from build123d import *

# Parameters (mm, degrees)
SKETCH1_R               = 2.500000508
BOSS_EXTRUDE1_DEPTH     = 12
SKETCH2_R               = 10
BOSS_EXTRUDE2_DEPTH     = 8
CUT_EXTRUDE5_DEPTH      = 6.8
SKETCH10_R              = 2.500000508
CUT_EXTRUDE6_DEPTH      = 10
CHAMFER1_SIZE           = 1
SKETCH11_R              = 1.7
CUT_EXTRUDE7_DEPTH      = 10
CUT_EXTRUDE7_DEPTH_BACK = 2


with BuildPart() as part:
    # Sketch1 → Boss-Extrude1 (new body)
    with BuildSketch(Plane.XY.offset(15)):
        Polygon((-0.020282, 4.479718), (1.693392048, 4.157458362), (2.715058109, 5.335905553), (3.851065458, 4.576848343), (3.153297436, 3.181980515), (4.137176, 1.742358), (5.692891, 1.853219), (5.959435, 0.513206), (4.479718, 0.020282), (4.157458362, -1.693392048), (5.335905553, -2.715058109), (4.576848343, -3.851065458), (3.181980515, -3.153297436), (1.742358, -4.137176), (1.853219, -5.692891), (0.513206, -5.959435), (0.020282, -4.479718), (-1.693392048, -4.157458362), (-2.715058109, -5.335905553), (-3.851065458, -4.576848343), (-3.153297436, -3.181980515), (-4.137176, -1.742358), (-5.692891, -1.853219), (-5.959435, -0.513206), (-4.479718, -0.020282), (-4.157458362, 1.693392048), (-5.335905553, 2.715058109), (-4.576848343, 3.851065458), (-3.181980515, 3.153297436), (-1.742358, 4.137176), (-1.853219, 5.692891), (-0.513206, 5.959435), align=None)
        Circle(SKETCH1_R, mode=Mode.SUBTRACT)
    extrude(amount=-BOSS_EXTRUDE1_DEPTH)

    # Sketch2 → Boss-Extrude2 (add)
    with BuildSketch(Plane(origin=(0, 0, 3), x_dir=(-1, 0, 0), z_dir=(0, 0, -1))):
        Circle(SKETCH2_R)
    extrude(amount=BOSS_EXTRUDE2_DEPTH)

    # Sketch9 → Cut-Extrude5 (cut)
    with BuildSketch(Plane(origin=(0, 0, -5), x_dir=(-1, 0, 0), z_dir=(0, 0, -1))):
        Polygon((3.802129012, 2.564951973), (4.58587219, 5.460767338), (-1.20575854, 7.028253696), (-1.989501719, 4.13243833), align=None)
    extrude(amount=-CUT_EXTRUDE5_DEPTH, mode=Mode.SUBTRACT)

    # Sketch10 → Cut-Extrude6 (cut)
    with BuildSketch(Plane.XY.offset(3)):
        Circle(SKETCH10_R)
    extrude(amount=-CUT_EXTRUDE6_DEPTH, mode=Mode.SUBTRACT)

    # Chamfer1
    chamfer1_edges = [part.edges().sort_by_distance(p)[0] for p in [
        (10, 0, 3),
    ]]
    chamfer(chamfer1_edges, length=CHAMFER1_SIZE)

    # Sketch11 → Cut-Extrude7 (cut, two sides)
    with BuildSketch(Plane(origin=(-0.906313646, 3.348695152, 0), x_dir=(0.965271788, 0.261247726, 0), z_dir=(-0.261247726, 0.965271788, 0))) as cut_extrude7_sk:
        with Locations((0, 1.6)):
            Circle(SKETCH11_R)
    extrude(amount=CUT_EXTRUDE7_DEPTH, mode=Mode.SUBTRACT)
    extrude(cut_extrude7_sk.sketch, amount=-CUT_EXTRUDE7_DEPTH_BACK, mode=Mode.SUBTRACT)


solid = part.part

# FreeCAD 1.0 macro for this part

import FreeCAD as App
import Part
import Sketcher
from FreeCAD import Vector


def edges_at(feature, points):
    """Names of the edges that pass closest to the given points."""
    edges = feature.Shape.Edges
    near = lambda p: min(range(len(edges)), key=lambda i: edges[i].distToShape(Part.Vertex(*p))[0])
    return sorted({f"Edge{near(p) + 1}" for p in points})

doc = App.newDocument("Part")
body = doc.addObject("PartDesign::Body", "Body")

# Sketch on XY plane
sketch1 = body.newObject("Sketcher::SketchObject", "Sketch")
sketch1.AttachmentSupport = (doc.getObject("XY_Plane"), [""])
sketch1.MapMode = "FlatFace"
sketch1.AttachmentOffset = App.Placement(Vector(0, 0, 15), App.Rotation())
sketch1.addGeometry([
    Part.LineSegment(Vector(1.693392, 4.157458, 0), Vector(-0.020282, 4.479718, 0)),  # 0
    Part.LineSegment(Vector(-0.020282, 4.479718, 0), Vector(-0.513206, 5.959435, 0)),  # 1
    Part.LineSegment(Vector(-0.513206, 5.959435, 0), Vector(-1.853219, 5.692891, 0)),  # 2
    Part.LineSegment(Vector(-1.853219, 5.692891, 0), Vector(-1.742358, 4.137176, 0)),  # 3
    Part.LineSegment(Vector(-1.742358, 4.137176, 0), Vector(-3.181981, 3.153297, 0)),  # 4
    Part.LineSegment(Vector(-3.181981, 3.153297, 0), Vector(-4.576848, 3.851065, 0)),  # 5
    Part.LineSegment(Vector(-4.576848, 3.851065, 0), Vector(-5.335906, 2.715058, 0)),  # 6
    Part.LineSegment(Vector(-5.335906, 2.715058, 0), Vector(-4.157458, 1.693392, 0)),  # 7
    Part.LineSegment(Vector(-4.157458, 1.693392, 0), Vector(-4.479718, -0.020282, 0)),  # 8
    Part.LineSegment(Vector(-4.479718, -0.020282, 0), Vector(-5.959435, -0.513206, 0)),  # 9
    Part.LineSegment(Vector(-5.959435, -0.513206, 0), Vector(-5.692891, -1.853219, 0)),  # 10
    Part.LineSegment(Vector(-5.692891, -1.853219, 0), Vector(-4.137176, -1.742358, 0)),  # 11
    Part.LineSegment(Vector(-4.137176, -1.742358, 0), Vector(-3.153297, -3.181981, 0)),  # 12
    Part.LineSegment(Vector(-3.153297, -3.181981, 0), Vector(-3.851065, -4.576848, 0)),  # 13
    Part.LineSegment(Vector(-3.851065, -4.576848, 0), Vector(-2.715058, -5.335906, 0)),  # 14
    Part.LineSegment(Vector(-2.715058, -5.335906, 0), Vector(-1.693392, -4.157458, 0)),  # 15
    Part.LineSegment(Vector(-1.693392, -4.157458, 0), Vector(0.020282, -4.479718, 0)),  # 16
    Part.LineSegment(Vector(0.020282, -4.479718, 0), Vector(0.513206, -5.959435, 0)),  # 17
    Part.LineSegment(Vector(0.513206, -5.959435, 0), Vector(1.853219, -5.692891, 0)),  # 18
    Part.LineSegment(Vector(1.853219, -5.692891, 0), Vector(1.742358, -4.137176, 0)),  # 19
    Part.LineSegment(Vector(1.742358, -4.137176, 0), Vector(3.181981, -3.153297, 0)),  # 20
    Part.LineSegment(Vector(3.181981, -3.153297, 0), Vector(4.576848, -3.851065, 0)),  # 21
    Part.LineSegment(Vector(4.576848, -3.851065, 0), Vector(5.335906, -2.715058, 0)),  # 22
    Part.LineSegment(Vector(5.335906, -2.715058, 0), Vector(4.157458, -1.693392, 0)),  # 23
    Part.LineSegment(Vector(4.157458, -1.693392, 0), Vector(4.479718, 0.020282, 0)),  # 24
    Part.LineSegment(Vector(4.479718, 0.020282, 0), Vector(5.959435, 0.513206, 0)),  # 25
    Part.LineSegment(Vector(5.959435, 0.513206, 0), Vector(5.692891, 1.853219, 0)),  # 26
    Part.LineSegment(Vector(5.692891, 1.853219, 0), Vector(4.137176, 1.742358, 0)),  # 27
    Part.LineSegment(Vector(4.137176, 1.742358, 0), Vector(3.153297, 3.181981, 0)),  # 28
    Part.LineSegment(Vector(3.153297, 3.181981, 0), Vector(3.851065, 4.576848, 0)),  # 29
    Part.LineSegment(Vector(3.851065, 4.576848, 0), Vector(2.715058, 5.335906, 0)),  # 30
    Part.LineSegment(Vector(2.715058, 5.335906, 0), Vector(1.693392, 4.157458, 0)),  # 31
    Part.Circle(Vector(0, 0, 0), Vector(0, 0, 1), 2.500001),  # 32
], False)
sketch1.addConstraint([
    Sketcher.Constraint("Coincident", 0, 2, 1, 1),
    Sketcher.Constraint("Coincident", 1, 2, 2, 1),
    Sketcher.Constraint("Coincident", 2, 2, 3, 1),
    Sketcher.Constraint("Coincident", 3, 2, 4, 1),
    Sketcher.Constraint("Coincident", 4, 2, 5, 1),
    Sketcher.Constraint("Coincident", 5, 2, 6, 1),
    Sketcher.Constraint("Coincident", 6, 2, 7, 1),
    Sketcher.Constraint("Coincident", 7, 2, 8, 1),
    Sketcher.Constraint("Coincident", 8, 2, 9, 1),
    Sketcher.Constraint("Coincident", 9, 2, 10, 1),
    Sketcher.Constraint("Coincident", 10, 2, 11, 1),
    Sketcher.Constraint("Coincident", 11, 2, 12, 1),
    Sketcher.Constraint("Coincident", 12, 2, 13, 1),
    Sketcher.Constraint("Coincident", 13, 2, 14, 1),
    Sketcher.Constraint("Coincident", 14, 2, 15, 1),
    Sketcher.Constraint("Coincident", 15, 2, 16, 1),
    Sketcher.Constraint("Coincident", 16, 2, 17, 1),
    Sketcher.Constraint("Coincident", 17, 2, 18, 1),
    Sketcher.Constraint("Coincident", 18, 2, 19, 1),
    Sketcher.Constraint("Coincident", 19, 2, 20, 1),
    Sketcher.Constraint("Coincident", 20, 2, 21, 1),
    Sketcher.Constraint("Coincident", 21, 2, 22, 1),
    Sketcher.Constraint("Coincident", 22, 2, 23, 1),
    Sketcher.Constraint("Coincident", 23, 2, 24, 1),
    Sketcher.Constraint("Coincident", 24, 2, 25, 1),
    Sketcher.Constraint("Coincident", 25, 2, 26, 1),
    Sketcher.Constraint("Coincident", 26, 2, 27, 1),
    Sketcher.Constraint("Coincident", 27, 2, 28, 1),
    Sketcher.Constraint("Coincident", 28, 2, 29, 1),
    Sketcher.Constraint("Coincident", 29, 2, 30, 1),
    Sketcher.Constraint("Coincident", 30, 2, 31, 1),
    Sketcher.Constraint("Coincident", 31, 2, 0, 1),
    Sketcher.Constraint("Coincident", 32, 3, -1, 1),
    Sketcher.Constraint("Symmetric", 0, 2, 16, 2, -1, 1),
    Sketcher.Constraint("Symmetric", 1, 2, 17, 2, -1, 1),
    Sketcher.Constraint("Symmetric", 2, 2, 18, 2, -1, 1),
    Sketcher.Constraint("Symmetric", 3, 2, 19, 2, -1, 1),
    Sketcher.Constraint("Symmetric", 4, 2, 20, 2, -1, 1),
    Sketcher.Constraint("Symmetric", 5, 2, 21, 2, -1, 1),
    Sketcher.Constraint("Symmetric", 6, 2, 22, 2, -1, 1),
    Sketcher.Constraint("Symmetric", 7, 2, 23, 2, -1, 1),
    Sketcher.Constraint("Symmetric", 8, 2, 24, 2, -1, 1),
    Sketcher.Constraint("Symmetric", 9, 2, 25, 2, -1, 1),
    Sketcher.Constraint("Symmetric", 10, 2, 26, 2, -1, 1),
    Sketcher.Constraint("Symmetric", 11, 2, 27, 2, -1, 1),
    Sketcher.Constraint("Symmetric", 12, 2, 28, 2, -1, 1),
    Sketcher.Constraint("Symmetric", 13, 2, 29, 2, -1, 1),
    Sketcher.Constraint("Symmetric", 14, 2, 30, 2, -1, 1),
    Sketcher.Constraint("Symmetric", 15, 2, 31, 2, -1, 1),
    Sketcher.Constraint("Perpendicular", 0, 8),
    Sketcher.Constraint("Perpendicular", 1, 9),
    Sketcher.Constraint("Perpendicular", 2, 10),
    Sketcher.Constraint("Perpendicular", 3, 11),
    Sketcher.Constraint("Perpendicular", 4, 12),
    Sketcher.Constraint("Perpendicular", 5, 13),
    Sketcher.Constraint("Perpendicular", 6, 14),
    Sketcher.Constraint("Perpendicular", 7, 15),
    Sketcher.Constraint("Equal", 1, 3),
    Sketcher.Constraint("Equal", 0, 4),
    Sketcher.Constraint("Equal", 3, 5),
    Sketcher.Constraint("Equal", 2, 6),
    Sketcher.Constraint("Equal", 5, 7),
    Sketcher.Constraint("Equal", 4, 8),
    Sketcher.Constraint("Equal", 7, 9),
    Sketcher.Constraint("Equal", 6, 10),
    Sketcher.Constraint("Equal", 9, 11),
    Sketcher.Constraint("Equal", 8, 12),
    Sketcher.Constraint("Equal", 11, 13),
    Sketcher.Constraint("Equal", 10, 14),
    Sketcher.Constraint("Equal", 13, 15),
    Sketcher.Constraint("Diameter", 32, 5.000001),
    Sketcher.Constraint("DistanceX", 4, 2, 0, 2, 3.161699),
    Sketcher.Constraint("DistanceX", 7, 2, 3, 2, 2.4151),
    Sketcher.Constraint("DistanceY", 9, 2, 7, 2, 2.206598),
    Sketcher.Constraint("Distance", 0, 1.743712),
    Sketcher.Constraint("Distance", 1, 1.559659),
    Sketcher.Constraint("DistanceX", 2, 2, -1, 1, 1.853219),
    Sketcher.Constraint("DistanceY", -1, 1, 2, 2, 5.692891),
    Sketcher.Constraint("DistanceX", 3, 2, -1, 1, 1.742358),
    Sketcher.Constraint("DistanceX", 4, 2, -1, 1, 3.181981),
    Sketcher.Constraint("DistanceX", 5, 2, -1, 1, 4.576848),
    Sketcher.Constraint("DistanceY", -1, 1, 6, 2, 2.715058),
])
pad1 = body.newObject("PartDesign::Pad", "Pad")
pad1.Profile = sketch1
pad1.Length = 12
pad1.Reversed = True

# Sketch on XY plane
sketch2 = body.newObject("Sketcher::SketchObject", "Sketch001")
sketch2.AttachmentSupport = (doc.getObject("XY_Plane"), [""])
sketch2.MapMode = "FlatFace"
sketch2.AttachmentOffset = App.Placement(Vector(0, 0, 3), App.Rotation())
sketch2.addGeometry(Part.Circle(Vector(0, 0, 0), Vector(0, 0, 1), 10), False)
sketch2.addConstraint([
    Sketcher.Constraint("Coincident", 0, 3, -1, 1),
    Sketcher.Constraint("Diameter", 0, 20.0),
])
pad2 = body.newObject("PartDesign::Pad", "Pad001")
pad2.Profile = sketch2
pad2.Length = 8
pad2.Reversed = True

# Sketch on XY plane
sketch3 = body.newObject("Sketcher::SketchObject", "Sketch002")
sketch3.AttachmentSupport = (doc.getObject("XY_Plane"), [""])
sketch3.MapMode = "FlatFace"
sketch3.AttachmentOffset = App.Placement(Vector(0, 0, -5), App.Rotation())
sketch3.addGeometry([
    Part.LineSegment(Vector(-3.802129, 2.564952, 0), Vector(-4.585872, 5.460767, 0)),
    Part.LineSegment(Vector(-4.585872, 5.460767, 0), Vector(1.205759, 7.028254, 0)),
    Part.LineSegment(Vector(1.205759, 7.028254, 0), Vector(1.989502, 4.132438, 0)),
    Part.LineSegment(Vector(1.989502, 4.132438, 0), Vector(-3.802129, 2.564952, 0)),
], False)
sketch3.addConstraint([
    Sketcher.Constraint("Coincident", 0, 2, 1, 1),
    Sketcher.Constraint("Coincident", 1, 2, 2, 1),
    Sketcher.Constraint("Coincident", 2, 2, 3, 1),
    Sketcher.Constraint("Coincident", 3, 2, 0, 1),
    Sketcher.Constraint("Perpendicular", 0, 1),
    Sketcher.Constraint("Perpendicular", 1, 2),
    Sketcher.Constraint("Perpendicular", 2, 3),
    Sketcher.Constraint("Distance", 0, 3.0),
    Sketcher.Constraint("Distance", 1, 6.0),
    Sketcher.Constraint("DistanceX", -1, 1, 2, 2, 1.989502),
    Sketcher.Constraint("DistanceY", 3, 2, 1, 2, 4.463302),
    Sketcher.Constraint("DistanceY", -1, 1, 2, 2, 4.132438),
])
pocket1 = body.newObject("PartDesign::Pocket", "Pocket")
pocket1.Profile = sketch3
pocket1.Length = 6.8
pocket1.Reversed = True

# Sketch on XY plane
sketch4 = body.newObject("Sketcher::SketchObject", "Sketch003")
sketch4.AttachmentSupport = (doc.getObject("XY_Plane"), [""])
sketch4.MapMode = "FlatFace"
sketch4.AttachmentOffset = App.Placement(Vector(0, 0, 3), App.Rotation())
sketch4.addGeometry(Part.Circle(Vector(0, 0, 0), Vector(0, 0, 1), 2.500001), False)
sketch4.addConstraint([
    Sketcher.Constraint("Coincident", 0, 3, -1, 1),
    Sketcher.Constraint("Diameter", 0, 5.000001),
])
pocket2 = body.newObject("PartDesign::Pocket", "Pocket001")
pocket2.Profile = sketch4
pocket2.Length = 10
doc.recompute()

chamfer = body.newObject("PartDesign::Chamfer", "Chamfer")
chamfer.Base = (pocket2, edges_at(pocket2, [(10, 0, 3)]))
chamfer.Size = 1

# Sketch on an angled plane
sketch5 = body.newObject("Sketcher::SketchObject", "Sketch004")
sketch5.Placement = App.Placement(Vector(-0.906314, 3.348695, 0), App.Rotation(Vector(0.965271788, 0.261247726, 0), Vector(0, 0, -0.999999999), Vector(-0.261247726, 0.965271788, 0), "ZXY"))
sketch5.addGeometry(Part.Circle(Vector(0, 1.6, 0), Vector(0, 0, 1), 1.7), False)
sketch5.addConstraint([
    Sketcher.Constraint("PointOnObject", 0, 3, -2),
    Sketcher.Constraint("Diameter", 0, 3.4),
    Sketcher.Constraint("DistanceY", -1, 1, 0, 3, 1.6),
])
pocket3 = body.newObject("PartDesign::Pocket", "Pocket002")
pocket3.Profile = sketch5
pocket3.Type = "TwoLengths"
pocket3.Length = 10
pocket3.Length2 = 2
pocket3.Reversed = True

doc.recompute()
